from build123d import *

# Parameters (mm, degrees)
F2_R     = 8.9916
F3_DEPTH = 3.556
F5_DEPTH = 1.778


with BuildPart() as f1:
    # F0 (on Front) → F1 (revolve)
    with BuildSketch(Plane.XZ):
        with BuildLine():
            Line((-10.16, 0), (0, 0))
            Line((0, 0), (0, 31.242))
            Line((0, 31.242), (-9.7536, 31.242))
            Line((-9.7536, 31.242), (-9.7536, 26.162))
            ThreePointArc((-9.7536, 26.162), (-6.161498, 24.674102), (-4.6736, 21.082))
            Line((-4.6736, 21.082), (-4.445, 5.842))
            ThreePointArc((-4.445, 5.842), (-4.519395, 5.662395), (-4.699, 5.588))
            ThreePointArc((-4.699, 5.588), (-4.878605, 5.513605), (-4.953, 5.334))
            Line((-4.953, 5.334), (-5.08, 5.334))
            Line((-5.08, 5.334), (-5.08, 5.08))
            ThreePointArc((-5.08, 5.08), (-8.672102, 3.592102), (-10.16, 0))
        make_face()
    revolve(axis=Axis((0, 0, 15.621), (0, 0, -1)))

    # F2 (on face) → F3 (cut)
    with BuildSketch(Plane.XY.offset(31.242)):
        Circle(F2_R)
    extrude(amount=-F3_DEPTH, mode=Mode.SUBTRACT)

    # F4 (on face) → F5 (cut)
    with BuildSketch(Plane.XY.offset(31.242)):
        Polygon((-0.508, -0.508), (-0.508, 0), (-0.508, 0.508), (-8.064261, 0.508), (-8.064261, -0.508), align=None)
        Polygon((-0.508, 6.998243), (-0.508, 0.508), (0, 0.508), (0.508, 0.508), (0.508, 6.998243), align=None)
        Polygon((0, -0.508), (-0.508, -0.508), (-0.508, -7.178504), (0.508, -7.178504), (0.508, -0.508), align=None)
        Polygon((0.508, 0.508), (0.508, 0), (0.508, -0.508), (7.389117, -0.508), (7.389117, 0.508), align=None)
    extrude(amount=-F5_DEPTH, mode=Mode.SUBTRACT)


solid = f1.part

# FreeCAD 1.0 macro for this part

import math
import FreeCAD as App
import Part
import Sketcher

V = App.Vector
Q = App.Units.Quantity

doc = App.newDocument("Part")
body = doc.addObject("PartDesign::Body", "Body")

# Sketch on XZ plane
sketch1 = doc.addObject("Sketcher::SketchObject", "Sketch")
body.addObject(sketch1)
sketch1.AttachmentSupport = (doc.XZ_Plane, [""])
sketch1.MapMode = "FlatFace"
sketch1.addGeometry([
    Part.LineSegment(V(-10.16, 0, 0), V(0, 0, 0)),  # 0
    Part.LineSegment(V(0, 0, 0), V(0, 31.242, 0)),  # 1
    Part.LineSegment(V(0, 31.242, 0), V(-9.7536, 31.242, 0)),  # 2
    Part.LineSegment(V(-9.7536, 31.242, 0), V(-9.7536, 26.162, 0)),  # 3
    Part.ArcOfCircle(Part.Circle(V(-9.753602, 21.081998, 0), V(0, 0, 1), 5.080002), math.radians(0.000017), math.radians(89.999983)),  # 4
    Part.LineSegment(V(-4.6736, 21.082, 0), V(-4.445, 5.842, 0)),  # 5
    Part.ArcOfCircle(Part.Circle(V(-4.699, 5.842, 0), V(0, 0, 1), 0.254), math.radians(-89.999906), math.radians(-0.000094)),  # 6
    Part.ArcOfCircle(Part.Circle(V(-4.699, 5.334, 0), V(0, 0, 1), 0.254), math.radians(90.000094), math.radians(179.999906)),  # 7
    Part.LineSegment(V(-4.953, 5.334, 0), V(-5.08, 5.334, 0)),  # 8
    Part.LineSegment(V(-5.08, 5.334, 0), V(-5.08, 5.08, 0)),  # 9
    Part.ArcOfCircle(Part.Circle(V(-5.079998, -0.000002, 0), V(0, 0, 1), 5.080002), math.radians(90.000017), math.radians(179.999983)),  # 10
], False)
sketch1.addConstraint([
    Sketcher.Constraint("Coincident", 0, 2, 1, 1),
    Sketcher.Constraint("Coincident", 1, 2, 2, 1),
    Sketcher.Constraint("Coincident", 2, 2, 3, 1),
    Sketcher.Constraint("Coincident", 3, 2, 4, 2),
    Sketcher.Constraint("Coincident", 4, 1, 5, 1),
    Sketcher.Constraint("Coincident", 5, 2, 6, 2),
    Sketcher.Constraint("Tangent", 6, 1, 7, 1),
    Sketcher.Constraint("Coincident", 7, 2, 8, 1),
    Sketcher.Constraint("Coincident", 8, 2, 9, 1),
    Sketcher.Constraint("Coincident", 9, 2, 10, 1),
    Sketcher.Constraint("Coincident", 10, 2, 0, 1),
    Sketcher.Constraint("Horizontal", 0),
    Sketcher.Constraint("Vertical", 1),
    Sketcher.Constraint("Horizontal", 2),
    Sketcher.Constraint("Vertical", 3),
    Sketcher.Constraint("Horizontal", 8),
    Sketcher.Constraint("Vertical", 9),
    Sketcher.Constraint("Coincident", 0, 2, -1, 1),
    Sketcher.Constraint("Equal", 6, 7),
    Sketcher.Constraint("Equal", 4, 10),
    Sketcher.Constraint("PointOnObject", 10, 3, -1),
    Sketcher.Constraint("Horizontal", 6, 3, 5, 2),
    Sketcher.Constraint("Vertical", 6, 3, 7, 3),
    Sketcher.Constraint("Vertical", 4, 3, 2, 2),
    Sketcher.Constraint("Vertical", 10, 3, 8, 2),
    Sketcher.Constraint("Radius", 4, Q("0.2000001 in")),
    Sketcher.Constraint("Radius", 6, Q("0.01 in")),
    Sketcher.Constraint("DistanceX", 0, 1, 0, 2, Q("0.4 in")),
    Sketcher.Constraint("DistanceY", 3, 2, 3, 1, Q("0.2 in")),
    Sketcher.Constraint("DistanceY", 6, 3, 1, 2, Q("1 in")),
    Sketcher.Constraint("DistanceY", 1, 1, 1, 2, Q("1.23 in")),
    Sketcher.Constraint("DistanceY", 9, 2, 9, 1, Q("0.01 in")),
    Sketcher.Constraint("DistanceY", 4, 1, 3, 2, Q("0.2 in")),
    Sketcher.Constraint("DistanceX", 2, 2, 2, 1, Q("0.384 in")),
    Sketcher.Constraint("DistanceX", 8, 2, 8, 1, Q("0.005 in")),
])
revolution = doc.addObject("PartDesign::Revolution", "Revolution")
body.addObject(revolution)
revolution.Profile = sketch1
revolution.ReferenceAxis = (sketch1, ["V_Axis"])
revolution.Angle = 360

# Sketch on XY plane
sketch2 = doc.addObject("Sketcher::SketchObject", "Sketch001")
body.addObject(sketch2)
sketch2.AttachmentSupport = (doc.XY_Plane, [""])
sketch2.MapMode = "FlatFace"
sketch2.AttachmentOffset = App.Placement(V(0, 0, 1.23 * 25.4), App.Rotation())
sketch2.addGeometry(Part.Circle(V(0, 0, 0), V(0, 0, 1), 8.9916), False)
sketch2.addConstraint([
    Sketcher.Constraint("Coincident", 0, 3, -1, 1),
    Sketcher.Constraint("Diameter", 0, Q("0.708 in")),
])
pocket1 = doc.addObject("PartDesign::Pocket", "Pocket")
body.addObject(pocket1)
pocket1.Profile = sketch2
pocket1.Length = Q("0.14 in")

# Sketch on XY plane
sketch3 = doc.addObject("Sketcher::SketchObject", "Sketch002")
body.addObject(sketch3)
sketch3.AttachmentSupport = (doc.XY_Plane, [""])
sketch3.MapMode = "FlatFace"
sketch3.AttachmentOffset = App.Placement(V(0, 0, 1.23 * 25.4), App.Rotation())
sketch3.addGeometry([
    Part.LineSegment(V(-0.508, -0.508, 0), V(-0.508, 0.508, 0)),  # 0
    Part.LineSegment(V(-0.508, 0.508, 0), V(-8.064261, 0.508, 0)),  # 1
    Part.LineSegment(V(-8.064261, 0.508, 0), V(-8.064261, -0.508, 0)),  # 2
    Part.LineSegment(V(-8.064261, -0.508, 0), V(-0.508, -0.508, 0)),  # 3
    Part.LineSegment(V(-0.508, 6.998243, 0), V(-0.508, 0.508, 0)),  # 4
    Part.LineSegment(V(-0.508, 0.508, 0), V(0.508, 0.508, 0)),  # 5
    Part.LineSegment(V(0.508, 0.508, 0), V(0.508, 6.998243, 0)),  # 6
    Part.LineSegment(V(0.508, 6.998243, 0), V(-0.508, 6.998243, 0)),  # 7
    Part.LineSegment(V(-0.508, -0.508, 0), V(-0.508, -7.178504, 0)),  # 8
    Part.LineSegment(V(-0.508, -7.178504, 0), V(0.508, -7.178504, 0)),  # 9
    Part.LineSegment(V(0.508, -7.178504, 0), V(0.508, -0.508, 0)),  # 10
    Part.LineSegment(V(0.508, -0.508, 0), V(-0.508, -0.508, 0)),  # 11
    Part.LineSegment(V(0.508, 0.508, 0), V(0.508, -0.508, 0)),  # 12
    Part.LineSegment(V(0.508, -0.508, 0), V(7.389117, -0.508, 0)),  # 13
    Part.LineSegment(V(7.389117, -0.508, 0), V(7.389117, 0.508, 0)),  # 14
    Part.LineSegment(V(7.389117, 0.508, 0), V(0.508, 0.508, 0)),  # 15
], False)
sketch3.addConstraint([
    Sketcher.Constraint("Coincident", 0, 2, 1, 1),
    Sketcher.Constraint("Coincident", 1, 2, 2, 1),
    Sketcher.Constraint("Coincident", 2, 2, 3, 1),
    Sketcher.Constraint("Coincident", 3, 2, 0, 1),
    Sketcher.Constraint("Coincident", 4, 2, 5, 1),
    Sketcher.Constraint("Coincident", 5, 2, 6, 1),
    Sketcher.Constraint("Coincident", 6, 2, 7, 1),
    Sketcher.Constraint("Coincident", 7, 2, 4, 1),
    Sketcher.Constraint("Coincident", 8, 2, 9, 1),
    Sketcher.Constraint("Coincident", 9, 2, 10, 1),
    Sketcher.Constraint("Coincident", 10, 2, 11, 1),
    Sketcher.Constraint("Coincident", 11, 2, 8, 1),
    Sketcher.Constraint("Coincident", 12, 2, 13, 1),
    Sketcher.Constraint("Coincident", 13, 2, 14, 1),
    Sketcher.Constraint("Coincident", 14, 2, 15, 1),
    Sketcher.Constraint("Coincident", 15, 2, 12, 1),
    Sketcher.Constraint("Vertical", 0),
    Sketcher.Constraint("Horizontal", 1),
    Sketcher.Constraint("Vertical", 2),
    Sketcher.Constraint("Horizontal", 3),
    Sketcher.Constraint("Vertical", 4),
    Sketcher.Constraint("Horizontal", 5),
    Sketcher.Constraint("Vertical", 6),
    Sketcher.Constraint("Horizontal", 7),
    Sketcher.Constraint("Vertical", 8),
    Sketcher.Constraint("Horizontal", 9),
    Sketcher.Constraint("Vertical", 10),
    Sketcher.Constraint("Horizontal", 11),
    Sketcher.Constraint("Vertical", 12),
    Sketcher.Constraint("Horizontal", 13),
    Sketcher.Constraint("Vertical", 14),
    Sketcher.Constraint("Horizontal", 15),
    Sketcher.Constraint("Coincident", 4, 2, 0, 2),
    Sketcher.Constraint("Coincident", 11, 2, 3, 2),
    Sketcher.Constraint("Coincident", 12, 2, 10, 2),
    Sketcher.Constraint("Coincident", 15, 2, 5, 2),
    Sketcher.Constraint("Symmetric", 3, 2, 5, 2, -1, 1),
    Sketcher.Constraint("Equal", 11, 0),
    Sketcher.Constraint("DistanceX", 5, 1, 5, 2, Q("0.04 in")),
    Sketcher.Constraint("DistanceX", 1, 2, 1, 1, Q("7.556261 mm")),
    Sketcher.Constraint("DistanceX", 13, 1, 13, 2, Q("6.881117 mm")),
    Sketcher.Constraint("DistanceY", 4, 2, 4, 1, Q("6.490243 mm")),
    Sketcher.Constraint("DistanceY", 8, 2, 8, 1, Q("6.670504 mm")),
])
pocket2 = doc.addObject("PartDesign::Pocket", "Pocket001")
body.addObject(pocket2)
pocket2.Profile = sketch3
pocket2.Length = Q("0.07 in")

doc.recompute()
